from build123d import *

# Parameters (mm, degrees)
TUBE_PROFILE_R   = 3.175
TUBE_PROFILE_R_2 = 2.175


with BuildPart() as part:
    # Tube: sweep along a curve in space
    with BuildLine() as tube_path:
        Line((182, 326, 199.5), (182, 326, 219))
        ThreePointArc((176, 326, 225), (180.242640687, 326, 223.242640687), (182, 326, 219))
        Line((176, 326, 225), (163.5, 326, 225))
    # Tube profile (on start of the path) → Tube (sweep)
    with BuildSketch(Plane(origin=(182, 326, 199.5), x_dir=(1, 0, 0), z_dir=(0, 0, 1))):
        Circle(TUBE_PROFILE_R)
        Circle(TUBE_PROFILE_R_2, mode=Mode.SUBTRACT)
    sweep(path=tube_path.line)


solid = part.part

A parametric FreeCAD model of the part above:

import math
import FreeCAD as App
import Part
import Sketcher
Q = App.Units.Quantity

doc = App.newDocument("Part")
body = doc.addObject("PartDesign::Body", "Body")

sketch1 = body.newObject("Sketcher::SketchObject", "Sketch")
sketch1.AttachmentSupport = (doc.getObject("XY_Plane"), [""])
sketch1.MapMode = "FlatFace"
sketch1.AttachmentOffset = App.Placement(App.Vector(0, 0, 199.5), App.Rotation())
sketch1.addGeometry([
    Part.Circle(App.Vector(182, 326, 0), App.Vector(0, 0, 1), 3.175),
    Part.Circle(App.Vector(182, 326, 0), App.Vector(0, 0, 1), 2.175),
], False)
sketch1.addConstraint([
    Sketcher.Constraint("Coincident", 1, 3, 0, 3),
    Sketcher.Constraint("Diameter", 0, Q("6.35 mm")),
    Sketcher.Constraint("Diameter", 1, Q("4.35 mm")),
    Sketcher.Constraint("DistanceX", -1, 1, 0, 3, Q("182 mm")),
    Sketcher.Constraint("DistanceY", -1, 1, 0, 3, Q("326 mm")),
])

sketch2 = body.newObject("Sketcher::SketchObject", "Sketch001")
sketch2.AttachmentSupport = (doc.getObject("XZ_Plane"), [""])
sketch2.MapMode = "FlatFace"
sketch2.AttachmentOffset = App.Placement(App.Vector(0, 0, -326), App.Rotation())
sketch2.addGeometry([
    Part.LineSegment(App.Vector(182, 199.5, 0), App.Vector(182, 219, 0)),
    Part.ArcOfCircle(Part.Circle(App.Vector(176, 219, 0), App.Vector(0, 0, 1), 6), math.radians(0), math.radians(90)),
    Part.LineSegment(App.Vector(176, 225, 0), App.Vector(163.5, 225, 0)),
], False)
sketch2.addConstraint([
    Sketcher.Constraint("Tangent", 0, 2, 1, 1),
    Sketcher.Constraint("Tangent", 1, 2, 2, 1),
    Sketcher.Constraint("Vertical", 0),
    Sketcher.Constraint("Horizontal", 2),
    Sketcher.Constraint("Radius", 1, Q("6 mm")),
    Sketcher.Constraint("DistanceX", 2, 2, 2, 1, Q("12.5 mm")),
    Sketcher.Constraint("DistanceY", 0, 1, 0, 2, Q("19.5 mm")),
    Sketcher.Constraint("DistanceX", -1, 1, 1, 3, Q("176 mm")),
    Sketcher.Constraint("DistanceY", -1, 1, 1, 3, Q("219 mm")),
])
doc.recompute()

additivepipe = body.newObject("PartDesign::AdditivePipe", "AdditivePipe")
additivepipe.Profile = sketch1
additivepipe.Spine = (sketch2, ["Edge1", "Edge2", "Edge3"])

doc.recompute()
